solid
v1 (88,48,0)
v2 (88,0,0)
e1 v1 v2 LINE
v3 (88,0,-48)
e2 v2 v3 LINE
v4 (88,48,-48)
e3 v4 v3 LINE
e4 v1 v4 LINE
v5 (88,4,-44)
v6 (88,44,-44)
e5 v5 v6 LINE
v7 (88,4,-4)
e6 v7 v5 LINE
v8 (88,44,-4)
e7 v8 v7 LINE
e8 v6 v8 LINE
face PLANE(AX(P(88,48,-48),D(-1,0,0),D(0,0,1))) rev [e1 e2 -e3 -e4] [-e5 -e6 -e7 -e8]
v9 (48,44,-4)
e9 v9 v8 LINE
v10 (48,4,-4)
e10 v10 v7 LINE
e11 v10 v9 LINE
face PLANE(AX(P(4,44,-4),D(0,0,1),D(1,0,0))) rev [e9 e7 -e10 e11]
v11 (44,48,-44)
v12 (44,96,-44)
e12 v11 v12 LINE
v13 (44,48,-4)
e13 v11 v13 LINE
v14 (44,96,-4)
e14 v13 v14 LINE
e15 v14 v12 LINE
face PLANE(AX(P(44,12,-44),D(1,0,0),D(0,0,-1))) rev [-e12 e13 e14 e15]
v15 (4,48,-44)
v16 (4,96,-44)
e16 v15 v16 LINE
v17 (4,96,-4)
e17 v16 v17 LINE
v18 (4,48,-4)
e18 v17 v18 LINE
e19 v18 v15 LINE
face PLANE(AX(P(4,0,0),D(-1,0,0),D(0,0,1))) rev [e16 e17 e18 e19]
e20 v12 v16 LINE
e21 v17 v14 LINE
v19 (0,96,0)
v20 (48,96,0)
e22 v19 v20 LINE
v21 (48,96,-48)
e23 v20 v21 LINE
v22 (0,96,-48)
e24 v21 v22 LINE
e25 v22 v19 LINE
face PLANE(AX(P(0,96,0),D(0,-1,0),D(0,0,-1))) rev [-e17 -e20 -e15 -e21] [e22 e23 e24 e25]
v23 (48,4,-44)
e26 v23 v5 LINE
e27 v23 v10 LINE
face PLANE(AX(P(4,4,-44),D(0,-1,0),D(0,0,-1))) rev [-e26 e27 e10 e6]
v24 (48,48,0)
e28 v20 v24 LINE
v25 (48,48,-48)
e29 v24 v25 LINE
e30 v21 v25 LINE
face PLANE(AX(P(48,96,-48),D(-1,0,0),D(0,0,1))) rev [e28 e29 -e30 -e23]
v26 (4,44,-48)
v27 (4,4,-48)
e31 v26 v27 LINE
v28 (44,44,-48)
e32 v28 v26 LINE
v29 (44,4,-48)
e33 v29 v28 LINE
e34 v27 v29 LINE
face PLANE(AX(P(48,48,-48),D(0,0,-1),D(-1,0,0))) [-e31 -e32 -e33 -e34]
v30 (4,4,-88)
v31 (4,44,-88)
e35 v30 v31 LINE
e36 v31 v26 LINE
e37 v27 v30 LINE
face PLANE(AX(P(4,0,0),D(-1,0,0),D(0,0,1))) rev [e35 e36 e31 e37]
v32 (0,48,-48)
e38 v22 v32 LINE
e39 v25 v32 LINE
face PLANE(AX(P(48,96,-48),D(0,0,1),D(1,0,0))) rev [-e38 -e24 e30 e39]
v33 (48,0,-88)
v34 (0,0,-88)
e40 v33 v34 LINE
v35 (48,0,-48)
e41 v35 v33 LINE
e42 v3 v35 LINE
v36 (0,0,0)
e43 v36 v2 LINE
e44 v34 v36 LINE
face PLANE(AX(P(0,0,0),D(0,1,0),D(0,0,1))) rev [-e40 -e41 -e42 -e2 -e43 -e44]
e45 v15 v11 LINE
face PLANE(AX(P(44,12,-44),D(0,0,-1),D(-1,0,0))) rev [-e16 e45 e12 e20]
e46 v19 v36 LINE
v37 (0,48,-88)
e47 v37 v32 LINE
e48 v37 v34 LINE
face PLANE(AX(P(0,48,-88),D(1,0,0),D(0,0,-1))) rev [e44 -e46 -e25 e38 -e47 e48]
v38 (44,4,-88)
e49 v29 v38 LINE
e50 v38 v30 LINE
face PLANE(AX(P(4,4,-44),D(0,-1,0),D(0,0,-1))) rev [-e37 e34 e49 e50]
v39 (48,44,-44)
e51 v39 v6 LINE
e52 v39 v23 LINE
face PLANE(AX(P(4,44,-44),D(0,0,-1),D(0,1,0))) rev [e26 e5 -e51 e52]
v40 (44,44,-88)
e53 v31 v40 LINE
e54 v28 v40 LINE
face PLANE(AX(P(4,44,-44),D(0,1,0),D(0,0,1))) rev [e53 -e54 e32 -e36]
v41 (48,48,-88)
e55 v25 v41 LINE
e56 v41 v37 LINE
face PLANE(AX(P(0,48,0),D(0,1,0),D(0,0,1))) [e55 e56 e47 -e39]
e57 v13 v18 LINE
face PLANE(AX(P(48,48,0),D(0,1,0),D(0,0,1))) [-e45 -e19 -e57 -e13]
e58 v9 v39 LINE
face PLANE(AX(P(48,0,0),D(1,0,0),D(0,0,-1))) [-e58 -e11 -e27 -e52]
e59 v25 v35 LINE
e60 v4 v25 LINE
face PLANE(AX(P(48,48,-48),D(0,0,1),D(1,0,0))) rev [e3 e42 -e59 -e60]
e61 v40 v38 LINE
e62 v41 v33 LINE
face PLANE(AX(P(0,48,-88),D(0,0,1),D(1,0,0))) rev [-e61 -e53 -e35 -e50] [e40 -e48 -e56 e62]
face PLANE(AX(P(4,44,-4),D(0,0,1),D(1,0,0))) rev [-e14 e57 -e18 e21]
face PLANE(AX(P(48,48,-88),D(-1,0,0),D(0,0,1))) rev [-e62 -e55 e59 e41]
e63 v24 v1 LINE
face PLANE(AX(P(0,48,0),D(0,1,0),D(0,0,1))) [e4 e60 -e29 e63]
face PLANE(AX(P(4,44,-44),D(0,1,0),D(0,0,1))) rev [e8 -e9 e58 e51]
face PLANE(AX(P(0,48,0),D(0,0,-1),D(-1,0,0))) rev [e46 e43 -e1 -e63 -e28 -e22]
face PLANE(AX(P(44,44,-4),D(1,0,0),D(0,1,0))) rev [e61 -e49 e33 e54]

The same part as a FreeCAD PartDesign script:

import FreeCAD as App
import Part
import Sketcher


def add_polygon(sketch, points):
    """Adds a closed chain of lines whose ends are joined by coincident constraints."""
    first, n = sketch.GeometryCount, len(points)
    for a, b in zip(points, points[1:] + points[:1]):
        sketch.addGeometry(Part.LineSegment(App.Vector(*a, 0), App.Vector(*b, 0)), False)
    for i in range(n):
        sketch.addConstraint(Sketcher.Constraint("Coincident", first + i, 2, first + (i + 1) % n, 1))

doc = App.newDocument("Part")
body = doc.addObject("PartDesign::Body", "Body")

# Sketch on XZ plane
sketch1 = body.newObject("Sketcher::SketchObject", "Sketch")
sketch1.AttachmentSupport = (doc.getObject("XZ_Plane"), [""])
sketch1.MapMode = "FlatFace"
add_polygon(sketch1, [(0, -88), (0, 0), (88, 0), (88, -48), (48, -48), (48, -88)])  # lines 0-5
sketch1.addConstraint(Sketcher.Constraint("Vertical", 0))
sketch1.addConstraint(Sketcher.Constraint("Horizontal", 1))
sketch1.addConstraint(Sketcher.Constraint("Vertical", 2))
sketch1.addConstraint(Sketcher.Constraint("Horizontal", 3))
sketch1.addConstraint(Sketcher.Constraint("Vertical", 4))
sketch1.addConstraint(Sketcher.Constraint("Horizontal", 5))
sketch1.addConstraint(Sketcher.Constraint("Coincident", 0, 2, -1, 1))
sketch1.addConstraint(Sketcher.Constraint("Equal", 1, 0))
sketch1.addConstraint(Sketcher.Constraint("Equal", 5, 2))
sketch1.addConstraint(Sketcher.Constraint("DistanceX", 1, 1, 1, 2, 88.0))
sketch1.addConstraint(Sketcher.Constraint("DistanceX", 3, 2, 3, 1, 40.0))
pad1 = body.newObject("PartDesign::Pad", "Pad")
pad1.Profile = sketch1
pad1.Length = 48
pad1.Reversed = True

# Sketch on XZ plane
sketch2 = body.newObject("Sketcher::SketchObject", "Sketch001")
sketch2.AttachmentSupport = (doc.getObject("XZ_Plane"), [""])
sketch2.MapMode = "FlatFace"
sketch2.AttachmentOffset = App.Placement(App.Vector(0, 0, -48), App.Rotation())
add_polygon(sketch2, [(0, -48), (0, 0), (48, 0), (48, -48)])  # lines 0-3
sketch2.addConstraint(Sketcher.Constraint("Vertical", 0))
sketch2.addConstraint(Sketcher.Constraint("Horizontal", 1))
sketch2.addConstraint(Sketcher.Constraint("Vertical", 2))
sketch2.addConstraint(Sketcher.Constraint("Horizontal", 3))
sketch2.addConstraint(Sketcher.Constraint("Coincident", 0, 2, -1, 1))
sketch2.addConstraint(Sketcher.Constraint("Equal", 3, 0))
sketch2.addConstraint(Sketcher.Constraint("DistanceX", 1, 1, 1, 2, 48.0))
pad2 = body.newObject("PartDesign::Pad", "Pad001")
pad2.Profile = sketch2
pad2.Length = 48
pad2.Reversed = True

# Sketch on YZ plane
sketch3 = body.newObject("Sketcher::SketchObject", "Sketch002")
sketch3.AttachmentSupport = (doc.getObject("YZ_Plane"), [""])
sketch3.MapMode = "FlatFace"
sketch3.AttachmentOffset = App.Placement(App.Vector(0, 0, 88), App.Rotation())
add_polygon(sketch3, [(44, -4), (4, -4), (4, -44), (44, -44)])  # lines 0-3
sketch3.addConstraint(Sketcher.Constraint("Horizontal", 0))
sketch3.addConstraint(Sketcher.Constraint("Vertical", 1))
sketch3.addConstraint(Sketcher.Constraint("Horizontal", 2))
sketch3.addConstraint(Sketcher.Constraint("Vertical", 3))
sketch3.addConstraint(Sketcher.Constraint("Equal", 2, 1))
sketch3.addConstraint(Sketcher.Constraint("DistanceX", 0, 2, 0, 1, 40.0))
sketch3.addConstraint(Sketcher.Constraint("DistanceX", -1, 1, 0, 2, 4.0))
sketch3.addConstraint(Sketcher.Constraint("DistanceY", 0, 2, -1, 1, 4.0))
pocket1 = body.newObject("PartDesign::Pocket", "Pocket")
pocket1.Profile = sketch3
pocket1.Length = 84

# Sketch on XY plane
sketch4 = body.newObject("Sketcher::SketchObject", "Sketch003")
sketch4.AttachmentSupport = (doc.getObject("XY_Plane"), [""])
sketch4.MapMode = "FlatFace"
sketch4.AttachmentOffset = App.Placement(App.Vector(0, 0, -88), App.Rotation())
add_polygon(sketch4, [(44, 44), (44, 4), (4, 4), (4, 44)])  # lines 0-3
sketch4.addConstraint(Sketcher.Constraint("Vertical", 0))
sketch4.addConstraint(Sketcher.Constraint("Horizontal", 1))
sketch4.addConstraint(Sketcher.Constraint("Vertical", 2))
sketch4.addConstraint(Sketcher.Constraint("Horizontal", 3))
sketch4.addConstraint(Sketcher.Constraint("Equal", 3, 0))
sketch4.addConstraint(Sketcher.Constraint("DistanceX", 1, 2, 1, 1, 40.0))
sketch4.addConstraint(Sketcher.Constraint("DistanceX", -1, 1, 0, 2, 44.0))
sketch4.addConstraint(Sketcher.Constraint("DistanceY", -1, 1, 0, 2, 4.0))
pocket2 = body.newObject("PartDesign::Pocket", "Pocket001")
pocket2.Profile = sketch4
pocket2.Length = 84
pocket2.Reversed = True

# Sketch on XZ plane
sketch5 = body.newObject("Sketcher::SketchObject", "Sketch004")
sketch5.AttachmentSupport = (doc.getObject("XZ_Plane"), [""])
sketch5.MapMode = "FlatFace"
sketch5.AttachmentOffset = App.Placement(App.Vector(0, 0, -96), App.Rotation())
add_polygon(sketch5, [(4, -44), (4, -4), (44, -4), (44, -44)])  # lines 0-3
sketch5.addConstraint(Sketcher.Constraint("Vertical", 0))
sketch5.addConstraint(Sketcher.Constraint("Horizontal", 1))
sketch5.addConstraint(Sketcher.Constraint("Vertical", 2))
sketch5.addConstraint(Sketcher.Constraint("Horizontal", 3))
sketch5.addConstraint(Sketcher.Constraint("Equal", 3, 0))
sketch5.addConstraint(Sketcher.Constraint("DistanceX", 1, 1, 1, 2, 40.0))
sketch5.addConstraint(Sketcher.Constraint("DistanceX", -1, 1, 0, 2, 4.0))
sketch5.addConstraint(Sketcher.Constraint("DistanceY", 0, 2, -1, 1, 4.0))
pocket3 = body.newObject("PartDesign::Pocket", "Pocket002")
pocket3.Profile = sketch5
pocket3.Length = 84
pocket3.Reversed = True

# Sketch on YZ plane
sketch6 = body.newObject("Sketcher::SketchObject", "Sketch005")
sketch6.AttachmentSupport = (doc.getObject("YZ_Plane"), [""])
sketch6.MapMode = "FlatFace"
sketch6.AttachmentOffset = App.Placement(App.Vector(0, 0, 4), App.Rotation())
add_polygon(sketch6, [(48, 0), (0, 0), (0, -48), (48, -48)])  # lines 0-3
sketch6.addConstraint(Sketcher.Constraint("Horizontal", 0))
sketch6.addConstraint(Sketcher.Constraint("Vertical", 1))
sketch6.addConstraint(Sketcher.Constraint("Horizontal", 2))
sketch6.addConstraint(Sketcher.Constraint("Vertical", 3))
sketch6.addConstraint(Sketcher.Constraint("Coincident", 0, 2, -1, 1))
sketch6.addConstraint(Sketcher.Constraint("Equal", 2, 1))
sketch6.addConstraint(Sketcher.Constraint("DistanceX", 0, 2, 0, 1, 48.0))
pad3 = body.newObject("PartDesign::Pad", "Pad002")
pad3.Profile = sketch6
pad3.Length = 44

doc.recompute()
